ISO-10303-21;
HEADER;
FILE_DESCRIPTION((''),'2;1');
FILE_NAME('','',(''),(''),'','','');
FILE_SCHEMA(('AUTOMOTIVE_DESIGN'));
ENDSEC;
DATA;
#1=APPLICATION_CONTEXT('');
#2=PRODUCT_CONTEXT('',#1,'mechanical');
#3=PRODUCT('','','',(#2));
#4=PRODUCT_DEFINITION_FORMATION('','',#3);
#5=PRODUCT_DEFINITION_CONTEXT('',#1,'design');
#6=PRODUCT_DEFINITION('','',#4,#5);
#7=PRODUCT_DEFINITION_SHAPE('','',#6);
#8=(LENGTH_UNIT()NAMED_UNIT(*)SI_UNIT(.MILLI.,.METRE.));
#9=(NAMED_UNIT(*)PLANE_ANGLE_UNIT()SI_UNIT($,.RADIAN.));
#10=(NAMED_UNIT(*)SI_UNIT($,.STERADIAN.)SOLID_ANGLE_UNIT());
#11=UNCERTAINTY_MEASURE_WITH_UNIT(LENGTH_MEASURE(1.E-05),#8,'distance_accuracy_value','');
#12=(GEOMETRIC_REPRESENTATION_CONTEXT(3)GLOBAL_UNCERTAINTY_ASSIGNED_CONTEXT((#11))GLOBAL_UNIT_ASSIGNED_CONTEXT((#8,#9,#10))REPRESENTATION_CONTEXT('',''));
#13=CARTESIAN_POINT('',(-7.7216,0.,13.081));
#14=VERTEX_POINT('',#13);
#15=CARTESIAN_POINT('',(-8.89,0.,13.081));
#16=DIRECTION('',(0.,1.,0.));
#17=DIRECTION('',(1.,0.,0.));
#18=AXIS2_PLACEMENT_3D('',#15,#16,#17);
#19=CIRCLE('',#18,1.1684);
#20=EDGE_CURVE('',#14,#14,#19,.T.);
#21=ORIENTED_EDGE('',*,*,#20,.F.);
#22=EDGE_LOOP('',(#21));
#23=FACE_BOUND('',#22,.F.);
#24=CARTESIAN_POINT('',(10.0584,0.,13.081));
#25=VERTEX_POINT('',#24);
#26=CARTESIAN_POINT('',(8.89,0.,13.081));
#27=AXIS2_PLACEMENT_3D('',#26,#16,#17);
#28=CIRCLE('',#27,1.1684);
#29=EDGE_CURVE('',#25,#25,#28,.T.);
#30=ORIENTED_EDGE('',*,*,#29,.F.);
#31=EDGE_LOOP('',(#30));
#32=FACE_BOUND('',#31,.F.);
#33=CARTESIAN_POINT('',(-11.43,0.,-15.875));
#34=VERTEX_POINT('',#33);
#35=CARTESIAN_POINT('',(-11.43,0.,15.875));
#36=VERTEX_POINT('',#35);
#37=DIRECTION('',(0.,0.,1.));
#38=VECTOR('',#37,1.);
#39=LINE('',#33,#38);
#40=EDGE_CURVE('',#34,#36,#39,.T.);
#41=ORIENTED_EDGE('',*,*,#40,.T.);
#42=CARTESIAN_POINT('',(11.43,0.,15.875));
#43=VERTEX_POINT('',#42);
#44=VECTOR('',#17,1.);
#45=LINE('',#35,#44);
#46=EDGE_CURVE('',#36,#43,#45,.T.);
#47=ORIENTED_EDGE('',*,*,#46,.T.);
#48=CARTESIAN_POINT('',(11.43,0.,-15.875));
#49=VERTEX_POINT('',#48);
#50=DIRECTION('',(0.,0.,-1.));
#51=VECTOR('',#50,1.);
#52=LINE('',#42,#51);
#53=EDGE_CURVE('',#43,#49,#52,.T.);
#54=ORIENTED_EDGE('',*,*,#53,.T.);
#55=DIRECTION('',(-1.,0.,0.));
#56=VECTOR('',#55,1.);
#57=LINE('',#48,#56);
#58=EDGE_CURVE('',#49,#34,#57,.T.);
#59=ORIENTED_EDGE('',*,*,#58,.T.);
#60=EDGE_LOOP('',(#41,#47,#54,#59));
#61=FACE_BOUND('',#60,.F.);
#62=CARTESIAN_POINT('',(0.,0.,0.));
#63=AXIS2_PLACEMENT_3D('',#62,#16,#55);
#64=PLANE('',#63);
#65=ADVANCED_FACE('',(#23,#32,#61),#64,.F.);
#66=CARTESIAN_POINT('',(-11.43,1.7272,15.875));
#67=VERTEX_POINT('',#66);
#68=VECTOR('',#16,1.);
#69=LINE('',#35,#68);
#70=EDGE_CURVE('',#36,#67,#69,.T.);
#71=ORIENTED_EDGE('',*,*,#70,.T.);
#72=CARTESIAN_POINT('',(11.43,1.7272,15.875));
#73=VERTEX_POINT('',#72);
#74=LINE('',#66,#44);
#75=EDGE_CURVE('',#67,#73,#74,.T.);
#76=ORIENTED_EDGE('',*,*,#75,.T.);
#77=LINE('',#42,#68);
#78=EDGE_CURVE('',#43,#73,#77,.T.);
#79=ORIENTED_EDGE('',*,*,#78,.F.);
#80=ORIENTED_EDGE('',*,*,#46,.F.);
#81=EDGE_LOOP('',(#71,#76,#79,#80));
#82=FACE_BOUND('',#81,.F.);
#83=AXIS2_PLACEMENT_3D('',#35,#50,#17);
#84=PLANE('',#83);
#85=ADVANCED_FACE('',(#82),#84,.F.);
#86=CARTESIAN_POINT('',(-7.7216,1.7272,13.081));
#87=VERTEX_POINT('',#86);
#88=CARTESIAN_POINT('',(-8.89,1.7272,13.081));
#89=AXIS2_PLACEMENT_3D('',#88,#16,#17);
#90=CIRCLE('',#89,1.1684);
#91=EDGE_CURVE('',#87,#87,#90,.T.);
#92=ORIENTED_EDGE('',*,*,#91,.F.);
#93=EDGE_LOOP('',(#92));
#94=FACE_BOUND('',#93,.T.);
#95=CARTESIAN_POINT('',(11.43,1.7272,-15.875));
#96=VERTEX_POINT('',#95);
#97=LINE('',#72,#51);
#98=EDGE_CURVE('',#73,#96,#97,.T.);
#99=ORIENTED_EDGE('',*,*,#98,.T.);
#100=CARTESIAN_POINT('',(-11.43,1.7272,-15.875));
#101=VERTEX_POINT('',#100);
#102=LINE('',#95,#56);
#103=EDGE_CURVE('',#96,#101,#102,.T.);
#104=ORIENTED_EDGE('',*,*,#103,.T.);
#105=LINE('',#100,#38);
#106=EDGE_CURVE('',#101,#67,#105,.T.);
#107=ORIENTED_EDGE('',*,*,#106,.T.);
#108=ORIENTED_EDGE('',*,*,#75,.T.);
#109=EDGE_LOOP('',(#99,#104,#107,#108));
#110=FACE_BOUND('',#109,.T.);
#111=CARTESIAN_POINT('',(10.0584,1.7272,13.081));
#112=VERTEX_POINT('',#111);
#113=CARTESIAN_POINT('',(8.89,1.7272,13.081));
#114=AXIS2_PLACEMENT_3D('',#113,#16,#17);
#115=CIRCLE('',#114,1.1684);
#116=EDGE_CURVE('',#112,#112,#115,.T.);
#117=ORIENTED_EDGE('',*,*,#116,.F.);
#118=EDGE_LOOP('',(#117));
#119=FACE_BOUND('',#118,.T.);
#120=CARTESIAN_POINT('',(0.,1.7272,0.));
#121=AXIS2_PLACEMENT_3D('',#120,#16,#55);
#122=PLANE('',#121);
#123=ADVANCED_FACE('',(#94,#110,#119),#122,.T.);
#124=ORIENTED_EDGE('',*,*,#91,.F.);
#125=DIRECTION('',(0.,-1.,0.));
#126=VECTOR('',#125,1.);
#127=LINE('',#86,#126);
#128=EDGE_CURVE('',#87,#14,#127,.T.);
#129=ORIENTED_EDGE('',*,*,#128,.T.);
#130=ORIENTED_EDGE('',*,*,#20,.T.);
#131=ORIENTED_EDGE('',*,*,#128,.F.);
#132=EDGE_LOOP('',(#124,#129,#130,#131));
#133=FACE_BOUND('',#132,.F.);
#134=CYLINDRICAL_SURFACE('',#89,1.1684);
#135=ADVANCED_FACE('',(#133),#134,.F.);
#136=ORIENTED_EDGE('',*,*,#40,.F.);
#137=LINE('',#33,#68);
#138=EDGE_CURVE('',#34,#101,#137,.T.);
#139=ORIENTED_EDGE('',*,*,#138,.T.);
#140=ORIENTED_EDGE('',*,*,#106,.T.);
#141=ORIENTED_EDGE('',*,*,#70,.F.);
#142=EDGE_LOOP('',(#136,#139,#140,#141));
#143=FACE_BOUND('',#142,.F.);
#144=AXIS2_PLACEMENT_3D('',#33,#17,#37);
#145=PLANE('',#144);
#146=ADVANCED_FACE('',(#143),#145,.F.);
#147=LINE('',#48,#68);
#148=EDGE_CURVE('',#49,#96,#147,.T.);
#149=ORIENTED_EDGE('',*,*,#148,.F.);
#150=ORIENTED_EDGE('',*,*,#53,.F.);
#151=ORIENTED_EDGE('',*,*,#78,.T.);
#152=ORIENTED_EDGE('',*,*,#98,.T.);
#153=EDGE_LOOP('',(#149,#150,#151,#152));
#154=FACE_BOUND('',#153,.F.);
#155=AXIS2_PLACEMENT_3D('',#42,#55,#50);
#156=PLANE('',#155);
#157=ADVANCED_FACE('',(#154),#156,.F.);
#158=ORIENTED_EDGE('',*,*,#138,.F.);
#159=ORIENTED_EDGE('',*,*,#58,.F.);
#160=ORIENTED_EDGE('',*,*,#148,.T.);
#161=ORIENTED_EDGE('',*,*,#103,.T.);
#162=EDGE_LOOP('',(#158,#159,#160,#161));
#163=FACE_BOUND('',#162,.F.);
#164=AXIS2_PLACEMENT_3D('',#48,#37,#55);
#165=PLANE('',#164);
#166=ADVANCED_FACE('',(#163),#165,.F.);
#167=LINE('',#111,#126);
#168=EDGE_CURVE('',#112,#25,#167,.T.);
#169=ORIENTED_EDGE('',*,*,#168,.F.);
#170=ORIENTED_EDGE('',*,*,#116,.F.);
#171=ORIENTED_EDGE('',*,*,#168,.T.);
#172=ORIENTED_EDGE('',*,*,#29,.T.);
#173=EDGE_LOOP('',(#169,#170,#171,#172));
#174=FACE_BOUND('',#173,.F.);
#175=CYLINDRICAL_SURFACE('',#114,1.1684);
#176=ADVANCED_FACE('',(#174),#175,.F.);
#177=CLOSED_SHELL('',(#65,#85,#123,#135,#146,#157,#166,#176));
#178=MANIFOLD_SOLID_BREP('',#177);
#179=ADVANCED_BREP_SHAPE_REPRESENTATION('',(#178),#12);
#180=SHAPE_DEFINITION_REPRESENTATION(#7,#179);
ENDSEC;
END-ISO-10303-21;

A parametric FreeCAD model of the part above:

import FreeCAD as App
import Part
import Sketcher
from FreeCAD import Vector
Q = App.Units.Quantity

doc = App.newDocument("Part")
body = doc.addObject("PartDesign::Body", "Body")

sketch1 = doc.addObject("Sketcher::SketchObject", "Sketch")
body.addObject(sketch1)
sketch1.AttachmentSupport = (doc.XZ_Plane, [""])
sketch1.MapMode = "FlatFace"
sketch1.addGeometry(Part.LineSegment(Vector(-11.43, -15.875, 0), Vector(-11.43, 15.875, 0)), False)
sketch1.addGeometry(Part.LineSegment(Vector(-11.43, 15.875, 0), Vector(11.43, 15.875, 0)), False)
sketch1.addGeometry(Part.LineSegment(Vector(11.43, 15.875, 0), Vector(11.43, -15.875, 0)), False)
sketch1.addGeometry(Part.LineSegment(Vector(11.43, -15.875, 0), Vector(-11.43, -15.875, 0)), False)
sketch1.addConstraint(Sketcher.Constraint("Coincident", 0, 2, 1, 1))
sketch1.addConstraint(Sketcher.Constraint("Coincident", 1, 2, 2, 1))
sketch1.addConstraint(Sketcher.Constraint("Coincident", 2, 2, 3, 1))
sketch1.addConstraint(Sketcher.Constraint("Coincident", 3, 2, 0, 1))
sketch1.addConstraint(Sketcher.Constraint("Vertical", 0))
sketch1.addConstraint(Sketcher.Constraint("Horizontal", 1))
sketch1.addConstraint(Sketcher.Constraint("Vertical", 2))
sketch1.addConstraint(Sketcher.Constraint("Horizontal", 3))
sketch1.addConstraint(Sketcher.Constraint("Symmetric", 0, 2, 2, 2, -1, 1))
sketch1.addConstraint(Sketcher.Constraint("DistanceX", 1, 1, 1, 2, Q("0.9 in")))
sketch1.addConstraint(Sketcher.Constraint("DistanceY", 0, 1, 0, 2, Q("1.25 in")))
pad1 = doc.addObject("PartDesign::Pad", "Pad")
body.addObject(pad1)
pad1.Profile = sketch1
pad1.Length = Q("0.068 in")
pad1.Reversed = True

sketch2 = doc.addObject("Sketcher::SketchObject", "Sketch001")
body.addObject(sketch2)
sketch2.AttachmentSupport = (doc.XZ_Plane, [""])
sketch2.MapMode = "FlatFace"
sketch2.AttachmentOffset = App.Placement(Vector(0, 0, -0.068 * 25.4), App.Rotation())
sketch2.addGeometry(Part.Circle(Vector(-8.89, 13.081, 0), Vector(0, 0, 1), 1.1684), False)
sketch2.addGeometry(Part.Circle(Vector(8.89, 13.081, 0), Vector(0, 0, 1), 1.1684), False)
sketch2.addConstraint(Sketcher.Constraint("Equal", 0, 1))
sketch2.addConstraint(Sketcher.Constraint("Symmetric", 0, 3, 1, 3, -2))
sketch2.addConstraint(Sketcher.Constraint("Diameter", 0, Q("0.092 in")))
sketch2.addConstraint(Sketcher.Constraint("DistanceX", 0, 3, 1, 3, Q("0.7 in")))
sketch2.addConstraint(Sketcher.Constraint("DistanceY", -1, 1, 0, 3, Q("0.515 in")))
pocket1 = doc.addObject("PartDesign::Pocket", "Pocket")
body.addObject(pocket1)
pocket1.Profile = sketch2
pocket1.Type = "ThroughAll"
pocket1.Reversed = True

doc.recompute()
